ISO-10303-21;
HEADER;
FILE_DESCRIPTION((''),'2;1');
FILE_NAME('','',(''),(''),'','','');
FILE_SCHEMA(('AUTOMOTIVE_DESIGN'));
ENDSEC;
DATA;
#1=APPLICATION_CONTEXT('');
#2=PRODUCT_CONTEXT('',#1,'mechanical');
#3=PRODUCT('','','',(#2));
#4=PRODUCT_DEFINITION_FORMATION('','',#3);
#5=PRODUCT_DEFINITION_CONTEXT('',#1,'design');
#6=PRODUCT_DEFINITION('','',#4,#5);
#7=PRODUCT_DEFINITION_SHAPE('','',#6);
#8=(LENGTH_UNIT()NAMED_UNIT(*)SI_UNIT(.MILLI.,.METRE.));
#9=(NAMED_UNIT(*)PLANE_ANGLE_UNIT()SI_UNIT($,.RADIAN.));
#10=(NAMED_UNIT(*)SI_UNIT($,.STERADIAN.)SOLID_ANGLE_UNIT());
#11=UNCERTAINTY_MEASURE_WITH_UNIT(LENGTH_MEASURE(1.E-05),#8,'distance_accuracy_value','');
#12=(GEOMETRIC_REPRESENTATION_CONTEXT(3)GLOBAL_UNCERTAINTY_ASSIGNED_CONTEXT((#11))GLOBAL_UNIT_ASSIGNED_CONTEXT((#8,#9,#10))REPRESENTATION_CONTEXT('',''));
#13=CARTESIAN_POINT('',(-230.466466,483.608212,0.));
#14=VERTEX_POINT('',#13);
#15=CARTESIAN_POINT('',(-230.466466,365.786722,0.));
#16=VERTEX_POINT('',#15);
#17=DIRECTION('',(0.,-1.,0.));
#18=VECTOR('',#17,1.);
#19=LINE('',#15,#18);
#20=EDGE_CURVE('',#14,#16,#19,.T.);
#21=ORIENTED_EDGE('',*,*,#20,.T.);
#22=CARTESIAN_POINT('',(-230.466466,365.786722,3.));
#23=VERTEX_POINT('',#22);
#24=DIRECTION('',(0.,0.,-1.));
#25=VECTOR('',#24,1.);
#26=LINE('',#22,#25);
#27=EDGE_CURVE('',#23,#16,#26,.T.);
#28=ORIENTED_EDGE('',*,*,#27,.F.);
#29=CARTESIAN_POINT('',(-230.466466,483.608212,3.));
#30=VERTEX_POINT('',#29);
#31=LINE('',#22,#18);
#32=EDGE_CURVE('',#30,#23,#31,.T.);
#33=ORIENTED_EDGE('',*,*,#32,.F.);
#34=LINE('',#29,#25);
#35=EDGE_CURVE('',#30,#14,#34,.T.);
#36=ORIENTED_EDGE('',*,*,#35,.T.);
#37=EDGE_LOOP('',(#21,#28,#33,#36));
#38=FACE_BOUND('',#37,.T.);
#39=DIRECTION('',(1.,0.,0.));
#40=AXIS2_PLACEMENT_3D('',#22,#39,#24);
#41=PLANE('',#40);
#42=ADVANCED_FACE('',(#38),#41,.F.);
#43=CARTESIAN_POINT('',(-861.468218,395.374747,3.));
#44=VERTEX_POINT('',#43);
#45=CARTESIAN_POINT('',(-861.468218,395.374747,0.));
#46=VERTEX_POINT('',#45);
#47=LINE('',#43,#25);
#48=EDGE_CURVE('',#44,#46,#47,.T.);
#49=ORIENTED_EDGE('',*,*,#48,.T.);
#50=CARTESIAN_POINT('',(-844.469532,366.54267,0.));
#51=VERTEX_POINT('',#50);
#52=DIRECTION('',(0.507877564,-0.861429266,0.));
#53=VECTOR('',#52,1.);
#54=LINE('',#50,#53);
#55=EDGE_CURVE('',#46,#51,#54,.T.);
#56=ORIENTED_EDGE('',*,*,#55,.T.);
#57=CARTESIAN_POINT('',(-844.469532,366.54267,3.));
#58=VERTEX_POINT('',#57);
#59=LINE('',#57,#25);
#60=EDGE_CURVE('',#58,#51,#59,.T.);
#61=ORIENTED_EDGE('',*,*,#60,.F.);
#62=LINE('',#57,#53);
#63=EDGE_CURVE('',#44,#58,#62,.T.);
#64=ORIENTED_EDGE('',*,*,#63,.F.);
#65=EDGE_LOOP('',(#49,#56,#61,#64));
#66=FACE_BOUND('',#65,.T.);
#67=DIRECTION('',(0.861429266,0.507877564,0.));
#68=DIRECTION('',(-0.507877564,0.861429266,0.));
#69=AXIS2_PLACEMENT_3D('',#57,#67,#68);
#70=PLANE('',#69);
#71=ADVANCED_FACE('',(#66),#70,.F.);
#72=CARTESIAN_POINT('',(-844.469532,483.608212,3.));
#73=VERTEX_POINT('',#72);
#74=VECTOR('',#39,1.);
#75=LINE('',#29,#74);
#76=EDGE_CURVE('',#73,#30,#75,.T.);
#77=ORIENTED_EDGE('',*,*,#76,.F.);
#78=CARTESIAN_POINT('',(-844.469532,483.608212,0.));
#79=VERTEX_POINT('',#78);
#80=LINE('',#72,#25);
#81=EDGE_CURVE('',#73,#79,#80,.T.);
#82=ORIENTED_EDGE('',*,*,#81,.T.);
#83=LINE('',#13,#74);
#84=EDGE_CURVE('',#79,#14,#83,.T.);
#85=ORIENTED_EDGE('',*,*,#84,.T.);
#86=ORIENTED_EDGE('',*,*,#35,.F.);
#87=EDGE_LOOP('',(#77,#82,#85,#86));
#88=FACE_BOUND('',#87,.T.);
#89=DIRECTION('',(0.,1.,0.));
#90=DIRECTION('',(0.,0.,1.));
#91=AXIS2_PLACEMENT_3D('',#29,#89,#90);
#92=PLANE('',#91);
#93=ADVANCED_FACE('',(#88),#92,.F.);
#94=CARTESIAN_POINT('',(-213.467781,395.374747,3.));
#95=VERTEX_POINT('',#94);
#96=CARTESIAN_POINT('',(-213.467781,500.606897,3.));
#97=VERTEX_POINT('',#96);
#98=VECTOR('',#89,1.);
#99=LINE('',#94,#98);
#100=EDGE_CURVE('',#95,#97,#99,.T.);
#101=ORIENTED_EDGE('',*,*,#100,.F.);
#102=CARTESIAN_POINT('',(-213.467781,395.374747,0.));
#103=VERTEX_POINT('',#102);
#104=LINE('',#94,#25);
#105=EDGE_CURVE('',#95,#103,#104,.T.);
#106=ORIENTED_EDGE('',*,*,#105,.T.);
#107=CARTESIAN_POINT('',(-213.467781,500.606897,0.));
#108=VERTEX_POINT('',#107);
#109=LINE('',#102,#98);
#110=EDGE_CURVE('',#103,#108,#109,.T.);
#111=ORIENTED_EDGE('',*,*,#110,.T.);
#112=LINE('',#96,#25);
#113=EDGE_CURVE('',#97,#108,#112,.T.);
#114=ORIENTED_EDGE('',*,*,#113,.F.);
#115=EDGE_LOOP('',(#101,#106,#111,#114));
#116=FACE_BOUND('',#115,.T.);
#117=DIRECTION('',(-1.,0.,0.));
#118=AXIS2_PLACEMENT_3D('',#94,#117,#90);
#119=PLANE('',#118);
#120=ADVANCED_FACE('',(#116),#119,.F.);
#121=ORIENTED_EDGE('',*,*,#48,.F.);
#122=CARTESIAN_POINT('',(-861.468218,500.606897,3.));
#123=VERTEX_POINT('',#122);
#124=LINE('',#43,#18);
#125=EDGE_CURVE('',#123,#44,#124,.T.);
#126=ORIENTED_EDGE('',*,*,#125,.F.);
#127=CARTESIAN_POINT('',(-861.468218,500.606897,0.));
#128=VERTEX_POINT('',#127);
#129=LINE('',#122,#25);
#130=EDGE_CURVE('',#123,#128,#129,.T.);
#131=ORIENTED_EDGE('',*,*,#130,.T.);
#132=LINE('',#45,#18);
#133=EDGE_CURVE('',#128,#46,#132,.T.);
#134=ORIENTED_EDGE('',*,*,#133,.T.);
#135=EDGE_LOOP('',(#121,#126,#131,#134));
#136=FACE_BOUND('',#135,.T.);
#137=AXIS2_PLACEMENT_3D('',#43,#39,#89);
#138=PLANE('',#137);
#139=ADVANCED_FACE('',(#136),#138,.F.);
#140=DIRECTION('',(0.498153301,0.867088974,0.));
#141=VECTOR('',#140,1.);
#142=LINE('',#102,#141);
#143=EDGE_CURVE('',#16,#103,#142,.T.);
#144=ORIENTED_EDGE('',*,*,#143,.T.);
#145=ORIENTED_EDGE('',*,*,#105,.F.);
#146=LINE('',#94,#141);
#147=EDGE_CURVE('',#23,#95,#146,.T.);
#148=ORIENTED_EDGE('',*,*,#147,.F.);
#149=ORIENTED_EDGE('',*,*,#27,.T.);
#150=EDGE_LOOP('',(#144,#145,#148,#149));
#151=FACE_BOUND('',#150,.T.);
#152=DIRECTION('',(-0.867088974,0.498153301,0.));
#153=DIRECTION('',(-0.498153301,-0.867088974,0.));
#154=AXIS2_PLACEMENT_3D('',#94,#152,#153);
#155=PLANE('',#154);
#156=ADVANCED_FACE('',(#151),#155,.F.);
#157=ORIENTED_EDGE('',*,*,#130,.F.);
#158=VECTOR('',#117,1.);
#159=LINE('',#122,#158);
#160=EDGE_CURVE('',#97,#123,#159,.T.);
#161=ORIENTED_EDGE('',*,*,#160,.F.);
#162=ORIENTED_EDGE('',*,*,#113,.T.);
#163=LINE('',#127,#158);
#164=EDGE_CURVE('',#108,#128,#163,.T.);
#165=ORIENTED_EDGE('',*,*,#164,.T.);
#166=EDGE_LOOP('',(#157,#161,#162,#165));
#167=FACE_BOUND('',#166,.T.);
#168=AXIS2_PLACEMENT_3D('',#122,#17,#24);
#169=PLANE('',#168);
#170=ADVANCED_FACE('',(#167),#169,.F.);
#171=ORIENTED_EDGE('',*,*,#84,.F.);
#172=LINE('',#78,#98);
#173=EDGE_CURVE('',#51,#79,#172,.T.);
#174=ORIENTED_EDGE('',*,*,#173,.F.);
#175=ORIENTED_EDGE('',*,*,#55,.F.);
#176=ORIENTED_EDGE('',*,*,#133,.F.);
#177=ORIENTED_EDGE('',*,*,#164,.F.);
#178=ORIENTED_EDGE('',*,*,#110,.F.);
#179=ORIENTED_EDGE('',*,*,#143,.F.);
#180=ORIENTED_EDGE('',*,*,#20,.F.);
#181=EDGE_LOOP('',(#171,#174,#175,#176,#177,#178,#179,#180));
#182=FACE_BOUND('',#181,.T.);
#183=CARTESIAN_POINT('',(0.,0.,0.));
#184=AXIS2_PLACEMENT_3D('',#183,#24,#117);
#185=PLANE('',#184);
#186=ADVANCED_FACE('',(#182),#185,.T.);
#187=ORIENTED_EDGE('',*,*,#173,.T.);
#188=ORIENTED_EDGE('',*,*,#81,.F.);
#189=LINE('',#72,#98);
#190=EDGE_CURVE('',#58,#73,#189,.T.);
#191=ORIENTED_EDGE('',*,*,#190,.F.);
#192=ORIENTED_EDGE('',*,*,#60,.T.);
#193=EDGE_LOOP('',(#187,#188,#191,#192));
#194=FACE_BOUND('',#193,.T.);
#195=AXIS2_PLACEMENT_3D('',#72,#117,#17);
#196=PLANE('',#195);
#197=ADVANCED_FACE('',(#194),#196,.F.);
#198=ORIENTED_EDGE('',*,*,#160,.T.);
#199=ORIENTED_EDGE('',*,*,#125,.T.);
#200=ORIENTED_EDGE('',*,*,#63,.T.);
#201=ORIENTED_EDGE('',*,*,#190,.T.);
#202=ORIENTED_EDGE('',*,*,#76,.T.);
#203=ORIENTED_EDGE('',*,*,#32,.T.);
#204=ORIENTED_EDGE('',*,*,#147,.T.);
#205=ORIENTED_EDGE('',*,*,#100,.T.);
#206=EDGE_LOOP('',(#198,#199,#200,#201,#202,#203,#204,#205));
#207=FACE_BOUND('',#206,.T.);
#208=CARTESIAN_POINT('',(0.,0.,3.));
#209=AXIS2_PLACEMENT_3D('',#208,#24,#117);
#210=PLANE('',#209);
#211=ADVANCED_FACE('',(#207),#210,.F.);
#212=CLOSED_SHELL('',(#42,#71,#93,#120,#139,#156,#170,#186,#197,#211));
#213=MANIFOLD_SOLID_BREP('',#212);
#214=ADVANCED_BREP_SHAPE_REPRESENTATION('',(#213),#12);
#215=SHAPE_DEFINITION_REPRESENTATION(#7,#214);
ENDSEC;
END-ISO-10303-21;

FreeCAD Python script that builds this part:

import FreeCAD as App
import Part
import Sketcher
Q = App.Units.Quantity


def add_polygon(sketch, points):
    """Adds a closed chain of lines whose ends are joined by coincident constraints."""
    first, n = sketch.GeometryCount, len(points)
    for a, b in zip(points, points[1:] + points[:1]):
        sketch.addGeometry(Part.LineSegment(App.Vector(*a, 0), App.Vector(*b, 0)), False)
    for i in range(n):
        sketch.addConstraint(Sketcher.Constraint("Coincident", first + i, 2, first + (i + 1) % n, 1))

doc = App.newDocument("Part")
body = doc.addObject("PartDesign::Body", "Body")

# Sketch on XY plane
sketch1 = body.newObject("Sketcher::SketchObject", "Sketch")
sketch1.AttachmentSupport = (doc.getObject("XY_Plane"), [""])
sketch1.MapMode = "FlatFace"
add_polygon(sketch1, [(-213.467781, 500.606897), (-861.468218, 500.606897), (-861.468218, 395.374747), (-844.469532, 366.54267), (-844.469532, 483.608212), (-230.466466, 483.608212), (-230.466466, 365.786722), (-213.467781, 395.374747)])  # lines 0-7
sketch1.addConstraint([
    Sketcher.Constraint("Horizontal", 0),
    Sketcher.Constraint("Vertical", 1),
    Sketcher.Constraint("Vertical", 3),
    Sketcher.Constraint("Horizontal", 4),
    Sketcher.Constraint("Vertical", 5),
    Sketcher.Constraint("Vertical", 7),
    Sketcher.Constraint("Horizontal", 1, 2, 6, 2),
    Sketcher.Constraint("Distance", 6, Q("34.123402 mm")),
    Sketcher.Constraint("DistanceY", 1, 2, 1, 1, Q("105.23215 mm")),
    Sketcher.Constraint("DistanceY", 3, 1, 3, 2, Q("117.065541 mm")),
    Sketcher.Constraint("DistanceY", 5, 2, 5, 1, Q("117.82149 mm")),
    Sketcher.Constraint("DistanceX", 0, 2, 0, 1, Q("648.000437 mm")),
    Sketcher.Constraint("DistanceX", 4, 1, 4, 2, Q("614.003067 mm")),
    Sketcher.Constraint("DistanceY", -1, 1, 2, 2, Q("366.54267 mm")),
    Sketcher.Constraint("DistanceX", 6, 2, -1, 1, Q("213.467781 mm")),
    Sketcher.Constraint("DistanceX", 0, 2, 4, 2, Q("631.001752 mm")),
])
pad1 = body.newObject("PartDesign::Pad", "Pad")
pad1.Profile = sketch1
pad1.Length = 3

doc.recompute()
